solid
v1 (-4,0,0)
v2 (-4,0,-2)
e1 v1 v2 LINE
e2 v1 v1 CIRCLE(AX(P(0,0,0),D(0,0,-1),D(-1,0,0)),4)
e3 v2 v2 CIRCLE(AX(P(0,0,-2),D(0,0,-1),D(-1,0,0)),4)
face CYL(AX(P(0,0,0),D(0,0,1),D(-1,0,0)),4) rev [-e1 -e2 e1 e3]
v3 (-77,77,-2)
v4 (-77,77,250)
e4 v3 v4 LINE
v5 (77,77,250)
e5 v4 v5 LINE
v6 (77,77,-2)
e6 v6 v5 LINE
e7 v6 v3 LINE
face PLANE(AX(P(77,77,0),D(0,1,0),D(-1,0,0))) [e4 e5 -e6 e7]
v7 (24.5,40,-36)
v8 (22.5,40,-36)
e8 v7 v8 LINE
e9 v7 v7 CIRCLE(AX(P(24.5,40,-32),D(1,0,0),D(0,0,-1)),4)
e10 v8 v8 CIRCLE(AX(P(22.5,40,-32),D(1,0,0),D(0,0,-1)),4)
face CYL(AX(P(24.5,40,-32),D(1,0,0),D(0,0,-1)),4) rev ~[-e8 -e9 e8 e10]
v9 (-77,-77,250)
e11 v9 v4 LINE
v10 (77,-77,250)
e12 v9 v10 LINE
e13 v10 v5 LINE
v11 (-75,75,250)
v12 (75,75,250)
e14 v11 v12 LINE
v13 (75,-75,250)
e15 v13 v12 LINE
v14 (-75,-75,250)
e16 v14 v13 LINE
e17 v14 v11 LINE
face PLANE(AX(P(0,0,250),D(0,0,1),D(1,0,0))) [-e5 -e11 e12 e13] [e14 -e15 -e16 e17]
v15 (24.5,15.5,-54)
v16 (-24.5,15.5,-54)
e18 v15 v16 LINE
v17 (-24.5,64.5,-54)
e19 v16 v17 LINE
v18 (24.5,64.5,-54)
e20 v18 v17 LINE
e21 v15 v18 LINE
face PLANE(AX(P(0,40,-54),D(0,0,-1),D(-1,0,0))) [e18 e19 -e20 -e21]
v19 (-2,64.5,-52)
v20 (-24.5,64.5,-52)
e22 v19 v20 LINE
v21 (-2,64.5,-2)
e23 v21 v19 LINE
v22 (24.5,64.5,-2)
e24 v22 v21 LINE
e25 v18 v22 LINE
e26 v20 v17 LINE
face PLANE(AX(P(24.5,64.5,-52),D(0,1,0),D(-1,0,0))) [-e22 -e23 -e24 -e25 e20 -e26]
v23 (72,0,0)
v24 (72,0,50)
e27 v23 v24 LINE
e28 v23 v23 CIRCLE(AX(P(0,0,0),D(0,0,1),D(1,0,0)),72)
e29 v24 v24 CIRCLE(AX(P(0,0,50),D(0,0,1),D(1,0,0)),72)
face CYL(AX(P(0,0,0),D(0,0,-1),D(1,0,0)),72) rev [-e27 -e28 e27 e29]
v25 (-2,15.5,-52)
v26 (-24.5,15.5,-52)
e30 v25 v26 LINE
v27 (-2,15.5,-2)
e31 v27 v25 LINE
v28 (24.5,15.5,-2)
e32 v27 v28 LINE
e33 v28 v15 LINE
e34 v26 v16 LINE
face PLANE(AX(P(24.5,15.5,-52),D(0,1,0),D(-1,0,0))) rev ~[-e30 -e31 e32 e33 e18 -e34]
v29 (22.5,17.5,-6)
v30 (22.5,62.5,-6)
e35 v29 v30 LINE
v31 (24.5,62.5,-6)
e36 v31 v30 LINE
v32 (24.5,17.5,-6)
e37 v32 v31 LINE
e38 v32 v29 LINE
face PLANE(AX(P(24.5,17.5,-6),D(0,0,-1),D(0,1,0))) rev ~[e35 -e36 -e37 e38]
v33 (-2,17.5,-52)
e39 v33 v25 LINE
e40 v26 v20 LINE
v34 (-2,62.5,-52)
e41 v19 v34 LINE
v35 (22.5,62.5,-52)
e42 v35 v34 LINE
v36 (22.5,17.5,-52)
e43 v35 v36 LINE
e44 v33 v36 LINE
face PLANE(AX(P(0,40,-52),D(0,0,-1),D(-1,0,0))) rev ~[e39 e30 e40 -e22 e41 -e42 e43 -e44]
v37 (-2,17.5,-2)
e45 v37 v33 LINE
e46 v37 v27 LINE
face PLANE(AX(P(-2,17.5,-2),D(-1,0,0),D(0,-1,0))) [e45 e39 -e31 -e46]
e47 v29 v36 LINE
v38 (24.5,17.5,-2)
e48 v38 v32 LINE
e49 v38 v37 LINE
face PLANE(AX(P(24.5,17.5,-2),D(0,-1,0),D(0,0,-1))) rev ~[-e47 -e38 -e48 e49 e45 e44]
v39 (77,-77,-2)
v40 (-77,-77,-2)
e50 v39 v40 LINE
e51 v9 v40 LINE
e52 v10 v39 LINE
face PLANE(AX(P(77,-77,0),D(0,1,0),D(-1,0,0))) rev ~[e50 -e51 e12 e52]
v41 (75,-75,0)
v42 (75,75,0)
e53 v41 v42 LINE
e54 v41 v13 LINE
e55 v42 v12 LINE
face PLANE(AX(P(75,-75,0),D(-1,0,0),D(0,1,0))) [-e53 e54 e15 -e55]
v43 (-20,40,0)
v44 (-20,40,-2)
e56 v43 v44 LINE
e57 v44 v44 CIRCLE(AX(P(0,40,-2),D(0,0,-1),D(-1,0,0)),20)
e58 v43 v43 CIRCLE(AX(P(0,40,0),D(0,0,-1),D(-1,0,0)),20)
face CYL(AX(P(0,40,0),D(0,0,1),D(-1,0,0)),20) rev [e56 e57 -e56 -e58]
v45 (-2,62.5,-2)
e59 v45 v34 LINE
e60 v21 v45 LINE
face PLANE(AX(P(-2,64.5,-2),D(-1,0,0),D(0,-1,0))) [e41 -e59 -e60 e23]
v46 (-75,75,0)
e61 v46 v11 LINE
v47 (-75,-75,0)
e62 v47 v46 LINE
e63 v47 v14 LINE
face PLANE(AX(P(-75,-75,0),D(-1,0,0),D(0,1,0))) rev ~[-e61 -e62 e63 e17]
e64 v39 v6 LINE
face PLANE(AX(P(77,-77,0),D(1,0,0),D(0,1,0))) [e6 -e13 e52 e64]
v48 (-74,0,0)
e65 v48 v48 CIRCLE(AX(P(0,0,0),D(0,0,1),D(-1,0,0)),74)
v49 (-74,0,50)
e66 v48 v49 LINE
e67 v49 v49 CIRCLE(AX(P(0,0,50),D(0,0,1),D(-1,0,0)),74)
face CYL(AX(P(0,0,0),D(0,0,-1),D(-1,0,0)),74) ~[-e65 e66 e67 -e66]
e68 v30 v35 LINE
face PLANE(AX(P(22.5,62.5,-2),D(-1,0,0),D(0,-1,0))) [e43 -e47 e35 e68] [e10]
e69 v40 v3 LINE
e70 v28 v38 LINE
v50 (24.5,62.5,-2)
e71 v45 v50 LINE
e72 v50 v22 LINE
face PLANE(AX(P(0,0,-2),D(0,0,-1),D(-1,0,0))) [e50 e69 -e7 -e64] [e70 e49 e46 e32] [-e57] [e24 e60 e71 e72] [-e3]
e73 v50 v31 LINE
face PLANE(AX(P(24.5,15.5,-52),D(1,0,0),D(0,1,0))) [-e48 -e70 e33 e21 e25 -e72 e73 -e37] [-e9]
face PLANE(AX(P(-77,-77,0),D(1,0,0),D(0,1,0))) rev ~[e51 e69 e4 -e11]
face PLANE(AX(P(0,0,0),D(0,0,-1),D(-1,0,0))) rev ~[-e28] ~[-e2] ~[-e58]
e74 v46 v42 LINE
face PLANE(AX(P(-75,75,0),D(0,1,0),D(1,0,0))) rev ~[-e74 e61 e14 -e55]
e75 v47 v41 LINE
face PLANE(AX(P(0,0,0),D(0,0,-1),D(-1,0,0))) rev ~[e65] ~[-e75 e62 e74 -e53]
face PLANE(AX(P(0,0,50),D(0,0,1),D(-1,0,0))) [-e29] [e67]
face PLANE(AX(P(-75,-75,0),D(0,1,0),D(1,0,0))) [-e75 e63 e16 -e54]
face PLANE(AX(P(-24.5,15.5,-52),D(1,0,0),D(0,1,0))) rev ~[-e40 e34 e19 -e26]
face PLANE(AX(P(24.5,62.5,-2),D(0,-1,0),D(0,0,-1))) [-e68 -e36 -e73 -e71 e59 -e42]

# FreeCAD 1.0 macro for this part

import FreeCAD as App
import Part
import Sketcher


def add_polygon(sketch, points):
    """Adds a closed chain of lines whose ends are joined by coincident constraints."""
    first, n = sketch.GeometryCount, len(points)
    for a, b in zip(points, points[1:] + points[:1]):
        sketch.addGeometry(Part.LineSegment(App.Vector(*a, 0), App.Vector(*b, 0)), False)
    for i in range(n):
        sketch.addConstraint(Sketcher.Constraint("Coincident", first + i, 2, first + (i + 1) % n, 1))

doc = App.newDocument("Part")
body = doc.addObject("PartDesign::Body", "Body")

sketch1 = doc.addObject("Sketcher::SketchObject", "Sketch")
body.addObject(sketch1)
sketch1.AttachmentSupport = (doc.XY_Plane, [""])
sketch1.MapMode = "FlatFace"
add_polygon(sketch1, [(-77, 77), (-77, -77), (77, -77), (77, 77)])
add_polygon(sketch1, [(75, -75), (-75, -75), (-75, 75), (75, 75)])
sketch1.addConstraint([
    Sketcher.Constraint("Vertical", 0),
    Sketcher.Constraint("Horizontal", 1),
    Sketcher.Constraint("Vertical", 2),
    Sketcher.Constraint("Horizontal", 3),
    Sketcher.Constraint("Horizontal", 4),
    Sketcher.Constraint("Vertical", 5),
    Sketcher.Constraint("Horizontal", 6),
    Sketcher.Constraint("Vertical", 7),
    Sketcher.Constraint("Symmetric", 0, 2, 2, 2, -1, 1),
    Sketcher.Constraint("Symmetric", 4, 2, 6, 2, -1, 1),
    Sketcher.Constraint("Equal", 3, 0),
    Sketcher.Constraint("Equal", 6, 5),
    Sketcher.Constraint("DistanceX", 1, 1, 1, 2, 154.0),
    Sketcher.Constraint("DistanceX", 4, 2, 4, 1, 150.0),
])
pad1 = doc.addObject("PartDesign::Pad", "Pad")
body.addObject(pad1)
pad1.Profile = sketch1
pad1.Length = 250

sketch2 = doc.addObject("Sketcher::SketchObject", "Sketch001")
body.addObject(sketch2)
sketch2.AttachmentSupport = (doc.XY_Plane, [""])
sketch2.MapMode = "FlatFace"
add_polygon(sketch2, [(77, 77), (77, -77), (-77, -77), (-77, 77)])
sketch2.addGeometry(Part.Circle(App.Vector(0, 0, 0), App.Vector(0, 0, 1), 4), False)
sketch2.addGeometry(Part.Circle(App.Vector(0, 40, 0), App.Vector(0, 0, 1), 20), False)
sketch2.addConstraint([
    Sketcher.Constraint("Vertical", 0),
    Sketcher.Constraint("Horizontal", 1),
    Sketcher.Constraint("Vertical", 2),
    Sketcher.Constraint("Horizontal", 3),
    Sketcher.Constraint("Coincident", 4, 3, -1, 1),
    Sketcher.Constraint("Symmetric", 0, 2, 2, 2, -1, 1),
    Sketcher.Constraint("PointOnObject", 5, 3, -2),
    Sketcher.Constraint("Equal", 3, 0),
    Sketcher.Constraint("Diameter", 4, 8.0),
    Sketcher.Constraint("Diameter", 5, 40.0),
    Sketcher.Constraint("DistanceX", 1, 2, 1, 1, 154.0),
    Sketcher.Constraint("DistanceY", -1, 1, 5, 3, 40.0),
])
pad2 = doc.addObject("PartDesign::Pad", "Pad001")
body.addObject(pad2)
pad2.Profile = sketch2
pad2.Length = 2
pad2.Reversed = True

sketch3 = doc.addObject("Sketcher::SketchObject", "Sketch002")
body.addObject(sketch3)
sketch3.AttachmentSupport = (doc.XY_Plane, [""])
sketch3.MapMode = "FlatFace"
sketch3.AttachmentOffset = App.Placement(App.Vector(0, 0, -2), App.Rotation())
add_polygon(sketch3, [(-2, 62.5), (-2, 64.5), (24.5, 64.5), (24.5, 15.5), (-2, 15.5), (-2, 17.5), (22.5, 17.5), (22.5, 62.5)])
sketch3.addConstraint([
    Sketcher.Constraint("Vertical", 0),
    Sketcher.Constraint("Horizontal", 1),
    Sketcher.Constraint("Vertical", 2),
    Sketcher.Constraint("Horizontal", 3),
    Sketcher.Constraint("Vertical", 4),
    Sketcher.Constraint("Horizontal", 5),
    Sketcher.Constraint("Vertical", 6),
    Sketcher.Constraint("Horizontal", 7),
    Sketcher.Constraint("Vertical", 0, 2, 3, 2),
    Sketcher.Constraint("Equal", 0, 4),
    Sketcher.Constraint("DistanceY", 0, 1, 0, 2, 2.0),
    Sketcher.Constraint("DistanceY", 2, 2, 2, 1, 49.0),
    Sketcher.Constraint("DistanceX", 1, 1, 1, 2, 26.5),
    Sketcher.Constraint("DistanceX", 5, 1, 5, 2, 24.5),
    Sketcher.Constraint("DistanceX", 0, 2, -1, 1, 2.0),
    Sketcher.Constraint("DistanceY", -1, 1, 0, 2, 64.5),
])
pad3 = doc.addObject("PartDesign::Pad", "Pad002")
body.addObject(pad3)
pad3.Profile = sketch3
pad3.Length = 50
pad3.Reversed = True

sketch4 = doc.addObject("Sketcher::SketchObject", "Sketch003")
body.addObject(sketch4)
sketch4.AttachmentSupport = (doc.XY_Plane, [""])
sketch4.MapMode = "FlatFace"
sketch4.AttachmentOffset = App.Placement(App.Vector(0, 0, -52), App.Rotation())
add_polygon(sketch4, [(24.5, 64.5), (24.5, 15.5), (-24.5, 15.5), (-24.5, 64.5)])
sketch4.addConstraint([
    Sketcher.Constraint("Vertical", 0),
    Sketcher.Constraint("Horizontal", 1),
    Sketcher.Constraint("Vertical", 2),
    Sketcher.Constraint("Horizontal", 3),
    Sketcher.Constraint("Equal", 3, 0),
    Sketcher.Constraint("DistanceX", 1, 2, 1, 1, 49.0),
    Sketcher.Constraint("DistanceX", -1, 1, 0, 2, 24.5),
    Sketcher.Constraint("DistanceY", -1, 1, 0, 2, 15.5),
])
pad4 = doc.addObject("PartDesign::Pad", "Pad003")
body.addObject(pad4)
pad4.Profile = sketch4
pad4.Length = 2
pad4.Reversed = True

sketch5 = doc.addObject("Sketcher::SketchObject", "Sketch004")
body.addObject(sketch5)
sketch5.AttachmentSupport = (doc.YZ_Plane, [""])
sketch5.MapMode = "FlatFace"
sketch5.AttachmentOffset = App.Placement(App.Vector(0, 0, 24.5), App.Rotation())
add_polygon(sketch5, [(62.5, -2), (17.5, -2), (17.5, -6), (62.5, -6)])
sketch5.addConstraint([
    Sketcher.Constraint("Horizontal", 0),
    Sketcher.Constraint("Vertical", 1),
    Sketcher.Constraint("Horizontal", 2),
    Sketcher.Constraint("Vertical", 3),
    Sketcher.Constraint("DistanceX", 0, 2, 0, 1, 45.0),
    Sketcher.Constraint("DistanceY", 1, 2, 1, 1, 4.0),
    Sketcher.Constraint("DistanceY", 0, 2, -1, 1, 2.0),
    Sketcher.Constraint("DistanceX", -1, 1, 0, 2, 17.5),
])
pocket1 = doc.addObject("PartDesign::Pocket", "Pocket")
body.addObject(pocket1)
pocket1.Profile = sketch5
pocket1.Length = 2

sketch6 = doc.addObject("Sketcher::SketchObject", "Sketch005")
body.addObject(sketch6)
sketch6.AttachmentSupport = (doc.YZ_Plane, [""])
sketch6.MapMode = "FlatFace"
sketch6.AttachmentOffset = App.Placement(App.Vector(0, 0, 24.5), App.Rotation())
sketch6.addGeometry(Part.Circle(App.Vector(40, -32, 0), App.Vector(0, 0, 1), 4), False)
sketch6.addConstraint([
    Sketcher.Constraint("Diameter", 0, 8.0),
    Sketcher.Constraint("DistanceX", -1, 1, 0, 3, 40.0),
    Sketcher.Constraint("DistanceY", 0, 3, -1, 1, 32.0),
])
pocket2 = doc.addObject("PartDesign::Pocket", "Pocket001")
body.addObject(pocket2)
pocket2.Profile = sketch6
pocket2.Length = 70

sketch7 = doc.addObject("Sketcher::SketchObject", "Sketch006")
body.addObject(sketch7)
sketch7.AttachmentSupport = (doc.XY_Plane, [""])
sketch7.MapMode = "FlatFace"
sketch7.addGeometry([
    Part.Circle(App.Vector(0, 0, 0), App.Vector(0, 0, 1), 74),
    Part.Circle(App.Vector(0, 0, 0), App.Vector(0, 0, 1), 72),
], False)
sketch7.addConstraint([
    Sketcher.Constraint("Coincident", 0, 3, -1, 1),
    Sketcher.Constraint("Coincident", 1, 3, -1, 1),
    Sketcher.Constraint("Diameter", 0, 148.0),
    Sketcher.Constraint("Diameter", 1, 144.0),
])
pad5 = doc.addObject("PartDesign::Pad", "Pad004")
body.addObject(pad5)
pad5.Profile = sketch7
pad5.Length = 50

doc.recompute()
